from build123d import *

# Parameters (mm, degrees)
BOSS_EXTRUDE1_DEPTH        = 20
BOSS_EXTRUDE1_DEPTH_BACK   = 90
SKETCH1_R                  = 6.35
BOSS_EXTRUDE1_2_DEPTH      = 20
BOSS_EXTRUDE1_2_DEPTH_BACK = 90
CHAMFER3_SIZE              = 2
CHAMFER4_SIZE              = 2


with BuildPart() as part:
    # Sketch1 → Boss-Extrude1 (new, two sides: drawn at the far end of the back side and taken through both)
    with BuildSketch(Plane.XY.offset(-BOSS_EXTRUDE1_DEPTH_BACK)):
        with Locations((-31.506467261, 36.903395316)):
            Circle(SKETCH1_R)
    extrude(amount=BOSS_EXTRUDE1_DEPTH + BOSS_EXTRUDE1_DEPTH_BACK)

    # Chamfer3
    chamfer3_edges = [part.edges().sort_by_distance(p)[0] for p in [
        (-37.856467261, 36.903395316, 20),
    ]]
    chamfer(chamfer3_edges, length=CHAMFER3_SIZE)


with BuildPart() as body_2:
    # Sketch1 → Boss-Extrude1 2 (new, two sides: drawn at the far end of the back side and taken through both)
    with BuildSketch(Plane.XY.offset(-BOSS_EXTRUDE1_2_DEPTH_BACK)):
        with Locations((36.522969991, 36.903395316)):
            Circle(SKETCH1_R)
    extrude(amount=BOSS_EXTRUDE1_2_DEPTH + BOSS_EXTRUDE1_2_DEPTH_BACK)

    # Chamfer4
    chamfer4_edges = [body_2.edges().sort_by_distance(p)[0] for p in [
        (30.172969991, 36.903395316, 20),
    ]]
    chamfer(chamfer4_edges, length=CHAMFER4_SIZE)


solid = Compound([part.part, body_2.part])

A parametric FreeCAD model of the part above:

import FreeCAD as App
import Part
import Sketcher
from FreeCAD import Vector
Q = App.Units.Quantity


def edges_at(feature, points):
    """Names of the edges that pass closest to the given points."""
    edges = feature.Shape.Edges
    near = lambda p: min(range(len(edges)), key=lambda i: edges[i].distToShape(Part.Vertex(*p))[0])
    return sorted({f"Edge{near(p) + 1}" for p in points})

doc = App.newDocument("Part")
body = doc.addObject("PartDesign::Body", "Body")

# Sketch on XY plane
sketch1 = doc.addObject("Sketcher::SketchObject", "Sketch")
body.addObject(sketch1)
sketch1.AttachmentSupport = (doc.XY_Plane, [""])
sketch1.MapMode = "FlatFace"
sketch1.addGeometry(Part.Circle(Vector(-32, 37, 0), Vector(0, 0, 1), 6), False)
sketch1.addConstraint(Sketcher.Constraint("Diameter", 0, Q("12.7 mm")))
sketch1.addConstraint(Sketcher.Constraint("DistanceX", 0, 3, -1, 1, Q("31.506467 mm")))
sketch1.addConstraint(Sketcher.Constraint("DistanceY", -1, 1, 0, 3, Q("36.903395 mm")))
pad1 = doc.addObject("PartDesign::Pad", "Pad")
body.addObject(pad1)
pad1.Profile = sketch1
pad1.Type = "TwoLengths"
pad1.Length = 20
pad1.Length2 = 90
doc.recompute()

chamfer = doc.addObject("PartDesign::Chamfer", "Chamfer")
body.addObject(chamfer)
chamfer.Base = (pad1, edges_at(pad1, [(-37.856, 36.903, 20)]))
chamfer.Size = 2
body2 = doc.addObject("PartDesign::Body", "Body001")

# Sketch on XY plane
sketch2 = doc.addObject("Sketcher::SketchObject", "Sketch001")
body2.addObject(sketch2)
sketch2.AttachmentSupport = (doc.getObject("XY_Plane001"), [""])
sketch2.MapMode = "FlatFace"
sketch2.addGeometry(Part.Circle(Vector(37, 37, 0), Vector(0, 0, 1), 6), False)
sketch2.addConstraint(Sketcher.Constraint("Diameter", 0, Q("12.7 mm")))
sketch2.addConstraint(Sketcher.Constraint("DistanceX", -1, 1, 0, 3, Q("36.52297 mm")))
sketch2.addConstraint(Sketcher.Constraint("DistanceY", -1, 1, 0, 3, Q("36.903395 mm")))
pad2 = doc.addObject("PartDesign::Pad", "Pad001")
body2.addObject(pad2)
pad2.Profile = sketch2
pad2.Type = "TwoLengths"
pad2.Length = 20
pad2.Length2 = 90
doc.recompute()

chamfer2 = doc.addObject("PartDesign::Chamfer", "Chamfer001")
body2.addObject(chamfer2)
chamfer2.Base = (pad2, edges_at(pad2, [(30.173, 36.903, 20)]))
chamfer2.Size = 2

doc.recompute()
